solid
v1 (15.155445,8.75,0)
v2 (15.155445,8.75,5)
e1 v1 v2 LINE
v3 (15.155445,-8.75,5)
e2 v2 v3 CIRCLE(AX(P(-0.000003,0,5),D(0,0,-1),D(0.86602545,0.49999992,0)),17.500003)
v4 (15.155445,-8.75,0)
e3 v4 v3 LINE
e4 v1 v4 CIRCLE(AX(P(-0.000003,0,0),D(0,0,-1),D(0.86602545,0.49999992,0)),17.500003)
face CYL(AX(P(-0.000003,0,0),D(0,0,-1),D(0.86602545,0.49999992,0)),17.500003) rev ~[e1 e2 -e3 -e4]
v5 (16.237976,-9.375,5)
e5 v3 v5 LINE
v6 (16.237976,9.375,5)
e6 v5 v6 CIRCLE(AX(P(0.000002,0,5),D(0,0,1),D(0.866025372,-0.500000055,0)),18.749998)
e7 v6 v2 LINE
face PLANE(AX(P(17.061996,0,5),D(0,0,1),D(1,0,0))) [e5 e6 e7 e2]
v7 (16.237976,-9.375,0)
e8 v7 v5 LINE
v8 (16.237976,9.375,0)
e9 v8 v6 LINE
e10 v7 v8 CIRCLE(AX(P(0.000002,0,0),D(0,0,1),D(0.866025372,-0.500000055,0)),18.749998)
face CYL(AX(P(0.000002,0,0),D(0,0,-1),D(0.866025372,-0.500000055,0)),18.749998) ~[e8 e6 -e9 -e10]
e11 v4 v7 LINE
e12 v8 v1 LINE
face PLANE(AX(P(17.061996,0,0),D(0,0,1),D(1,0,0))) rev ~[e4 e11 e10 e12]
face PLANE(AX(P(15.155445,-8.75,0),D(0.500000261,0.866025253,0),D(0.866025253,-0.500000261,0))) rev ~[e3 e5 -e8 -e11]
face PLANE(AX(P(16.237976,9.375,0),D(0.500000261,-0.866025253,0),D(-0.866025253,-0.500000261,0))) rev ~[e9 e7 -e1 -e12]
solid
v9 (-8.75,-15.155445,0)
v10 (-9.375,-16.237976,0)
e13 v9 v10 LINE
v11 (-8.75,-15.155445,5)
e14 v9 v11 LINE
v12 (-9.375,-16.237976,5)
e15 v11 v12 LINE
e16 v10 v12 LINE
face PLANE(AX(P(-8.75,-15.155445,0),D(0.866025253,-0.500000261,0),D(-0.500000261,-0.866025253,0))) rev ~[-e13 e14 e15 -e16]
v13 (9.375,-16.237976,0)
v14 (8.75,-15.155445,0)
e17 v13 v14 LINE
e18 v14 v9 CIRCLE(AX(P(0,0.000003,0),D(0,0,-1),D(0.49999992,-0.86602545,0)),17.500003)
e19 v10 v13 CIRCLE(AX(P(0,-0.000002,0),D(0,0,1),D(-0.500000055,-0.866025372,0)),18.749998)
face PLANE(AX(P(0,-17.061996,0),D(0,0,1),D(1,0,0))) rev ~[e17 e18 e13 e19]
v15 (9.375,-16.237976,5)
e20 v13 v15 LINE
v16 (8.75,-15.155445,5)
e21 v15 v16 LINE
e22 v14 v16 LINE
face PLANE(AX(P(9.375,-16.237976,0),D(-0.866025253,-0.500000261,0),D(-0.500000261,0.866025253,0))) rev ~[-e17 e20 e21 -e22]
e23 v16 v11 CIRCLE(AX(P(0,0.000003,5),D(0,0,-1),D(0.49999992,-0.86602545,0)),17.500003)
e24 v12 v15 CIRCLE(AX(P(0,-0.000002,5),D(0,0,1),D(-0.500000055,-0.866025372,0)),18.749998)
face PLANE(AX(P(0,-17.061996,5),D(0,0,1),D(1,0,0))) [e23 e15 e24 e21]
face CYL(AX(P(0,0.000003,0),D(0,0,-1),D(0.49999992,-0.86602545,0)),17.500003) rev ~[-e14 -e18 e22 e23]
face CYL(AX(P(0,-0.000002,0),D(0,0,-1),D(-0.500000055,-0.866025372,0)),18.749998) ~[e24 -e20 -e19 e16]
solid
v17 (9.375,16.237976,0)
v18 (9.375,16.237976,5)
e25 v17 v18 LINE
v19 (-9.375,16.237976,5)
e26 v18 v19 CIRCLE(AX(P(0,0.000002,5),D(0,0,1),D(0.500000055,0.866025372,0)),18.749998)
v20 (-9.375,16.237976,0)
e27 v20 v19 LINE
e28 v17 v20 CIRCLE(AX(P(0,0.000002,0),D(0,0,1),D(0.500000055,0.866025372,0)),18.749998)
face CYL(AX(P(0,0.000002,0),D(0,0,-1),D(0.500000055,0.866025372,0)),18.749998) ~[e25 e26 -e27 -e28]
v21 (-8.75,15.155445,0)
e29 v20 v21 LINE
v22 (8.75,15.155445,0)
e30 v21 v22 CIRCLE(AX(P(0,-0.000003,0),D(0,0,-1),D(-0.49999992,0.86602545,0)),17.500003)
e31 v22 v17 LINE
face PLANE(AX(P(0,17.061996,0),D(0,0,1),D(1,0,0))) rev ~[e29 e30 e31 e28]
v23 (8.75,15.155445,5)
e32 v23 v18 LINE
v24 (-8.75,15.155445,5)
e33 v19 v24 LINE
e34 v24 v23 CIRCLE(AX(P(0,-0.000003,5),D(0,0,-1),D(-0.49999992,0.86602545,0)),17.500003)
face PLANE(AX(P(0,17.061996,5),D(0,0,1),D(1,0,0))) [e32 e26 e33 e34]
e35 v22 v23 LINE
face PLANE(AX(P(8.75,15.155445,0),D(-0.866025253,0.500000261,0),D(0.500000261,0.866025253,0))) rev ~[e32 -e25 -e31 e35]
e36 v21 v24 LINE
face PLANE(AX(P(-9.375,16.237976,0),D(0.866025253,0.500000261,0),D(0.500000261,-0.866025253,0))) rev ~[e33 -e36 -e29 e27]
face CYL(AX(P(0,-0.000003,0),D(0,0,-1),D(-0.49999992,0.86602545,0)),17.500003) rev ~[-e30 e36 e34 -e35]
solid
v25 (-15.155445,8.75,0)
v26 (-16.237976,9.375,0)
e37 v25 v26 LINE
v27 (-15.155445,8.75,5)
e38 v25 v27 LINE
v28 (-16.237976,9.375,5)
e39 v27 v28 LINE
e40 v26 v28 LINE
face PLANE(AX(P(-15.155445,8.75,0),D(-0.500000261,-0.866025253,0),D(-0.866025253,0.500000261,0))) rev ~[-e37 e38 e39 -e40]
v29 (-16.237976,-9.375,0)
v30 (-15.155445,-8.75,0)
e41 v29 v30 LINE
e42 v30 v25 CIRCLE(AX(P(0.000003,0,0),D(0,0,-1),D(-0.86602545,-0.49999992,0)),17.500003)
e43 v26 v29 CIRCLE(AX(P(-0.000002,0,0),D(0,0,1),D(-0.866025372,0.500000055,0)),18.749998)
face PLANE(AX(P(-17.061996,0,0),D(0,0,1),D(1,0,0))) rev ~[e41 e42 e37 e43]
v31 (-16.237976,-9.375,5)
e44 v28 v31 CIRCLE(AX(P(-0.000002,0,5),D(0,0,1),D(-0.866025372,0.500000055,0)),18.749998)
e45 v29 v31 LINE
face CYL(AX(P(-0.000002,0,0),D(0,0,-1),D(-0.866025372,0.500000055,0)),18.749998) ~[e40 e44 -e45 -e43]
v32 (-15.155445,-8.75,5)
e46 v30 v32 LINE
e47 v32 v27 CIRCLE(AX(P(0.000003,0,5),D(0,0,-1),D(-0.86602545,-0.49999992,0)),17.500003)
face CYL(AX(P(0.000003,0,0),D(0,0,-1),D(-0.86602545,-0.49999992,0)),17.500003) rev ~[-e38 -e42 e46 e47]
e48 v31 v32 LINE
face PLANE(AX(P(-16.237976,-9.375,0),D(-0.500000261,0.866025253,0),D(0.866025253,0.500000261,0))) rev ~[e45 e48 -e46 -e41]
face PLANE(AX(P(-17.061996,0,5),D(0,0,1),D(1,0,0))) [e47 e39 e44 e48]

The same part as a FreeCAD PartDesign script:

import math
import FreeCAD as App
import Part
import Sketcher
Q = App.Units.Quantity

doc = App.newDocument("Part")
params = doc.addObject("Spreadsheet::Sheet", "Params")
for row, (alias, value) in enumerate([
    ("sketch1_length", "1.249999 mm"),
    ("pad1_length", "5 mm"),
], start=1):
    params.set(f"A{row}", alias)
    params.set(f"B{row}", "=" + value)
    params.setAlias(f"B{row}", alias)

body = doc.addObject("PartDesign::Body", "Body")
body.AllowCompound = True

# Sketch on XY plane
sketch1 = body.newObject("Sketcher::SketchObject", "Sketch")
sketch1.AttachmentSupport = (doc.getObject("XY_Plane"), [""])
sketch1.MapMode = "FlatFace"
sketch1.addGeometry(Part.ArcOfCircle(Part.Circle(App.Vector(0, 0, 0), App.Vector(0, 0, 1), 17.5), math.radians(150), math.radians(210)), False)
sketch1.addGeometry(Part.LineSegment(App.Vector(-15.2, 8.8, 0), App.Vector(-16.2, 9.4, 0)), False)
sketch1.addGeometry(Part.ArcOfCircle(Part.Circle(App.Vector(0, 0, 0), App.Vector(0, 0, 1), 18.7), math.radians(150), math.radians(210)), False)
sketch1.addGeometry(Part.LineSegment(App.Vector(-16.2, -9.4, 0), App.Vector(-15.2, -8.8, 0)), False)
sketch1.addGeometry(Part.ArcOfCircle(Part.Circle(App.Vector(0, 0, 0), App.Vector(0, 0, 1), 17.5), math.radians(-120), math.radians(-60)), False)
sketch1.addGeometry(Part.LineSegment(App.Vector(-8.8, -15.2, 0), App.Vector(-9.4, -16.2, 0)), False)
sketch1.addGeometry(Part.ArcOfCircle(Part.Circle(App.Vector(0, 0, 0), App.Vector(0, 0, 1), 18.7), math.radians(-120), math.radians(-60)), False)
sketch1.addGeometry(Part.LineSegment(App.Vector(9.4, -16.2, 0), App.Vector(8.8, -15.2, 0)), False)
sketch1.addGeometry(Part.ArcOfCircle(Part.Circle(App.Vector(0, 0, 0), App.Vector(0, 0, 1), 17.5), math.radians(-30), math.radians(30)), False)
sketch1.addGeometry(Part.LineSegment(App.Vector(15.2, -8.8, 0), App.Vector(16.2, -9.4, 0)), False)
sketch1.addGeometry(Part.ArcOfCircle(Part.Circle(App.Vector(0, 0, 0), App.Vector(0, 0, 1), 18.7), math.radians(-30), math.radians(30)), False)
sketch1.addGeometry(Part.LineSegment(App.Vector(16.2, 9.4, 0), App.Vector(15.2, 8.8, 0)), False)
sketch1.addGeometry(Part.LineSegment(App.Vector(-9.4, 16.2, 0), App.Vector(-8.8, 15.2, 0)), False)
sketch1.addGeometry(Part.ArcOfCircle(Part.Circle(App.Vector(0, 0, 0), App.Vector(0, 0, 1), 17.5), math.radians(60), math.radians(120)), False)
sketch1.addGeometry(Part.LineSegment(App.Vector(8.8, 15.2, 0), App.Vector(9.4, 16.2, 0)), False)
sketch1.addGeometry(Part.ArcOfCircle(Part.Circle(App.Vector(0, 0, 0), App.Vector(0, 0, 1), 18.7), math.radians(60), math.radians(120)), False)
sketch1.addConstraint(Sketcher.Constraint("Coincident", 0, 1, 1, 1))
sketch1.addConstraint(Sketcher.Constraint("Coincident", 1, 2, 2, 1))
sketch1.addConstraint(Sketcher.Constraint("Coincident", 2, 2, 3, 1))
sketch1.addConstraint(Sketcher.Constraint("Coincident", 3, 2, 0, 2))
sketch1.addConstraint(Sketcher.Constraint("Coincident", 4, 1, 5, 1))
sketch1.addConstraint(Sketcher.Constraint("Coincident", 5, 2, 6, 1))
sketch1.addConstraint(Sketcher.Constraint("Coincident", 6, 2, 7, 1))
sketch1.addConstraint(Sketcher.Constraint("Coincident", 7, 2, 4, 2))
sketch1.addConstraint(Sketcher.Constraint("Coincident", 8, 1, 9, 1))
sketch1.addConstraint(Sketcher.Constraint("Coincident", 9, 2, 10, 1))
sketch1.addConstraint(Sketcher.Constraint("Coincident", 10, 2, 11, 1))
sketch1.addConstraint(Sketcher.Constraint("Coincident", 11, 2, 8, 2))
sketch1.addConstraint(Sketcher.Constraint("Coincident", 12, 2, 13, 2))
sketch1.addConstraint(Sketcher.Constraint("Coincident", 13, 1, 14, 1))
sketch1.addConstraint(Sketcher.Constraint("Coincident", 14, 2, 15, 1))
sketch1.addConstraint(Sketcher.Constraint("Coincident", 15, 2, 12, 1))
sketch1.addConstraint(Sketcher.Constraint("Coincident", 0, 3, -1, 1))
sketch1.addConstraint(Sketcher.Constraint("Coincident", 2, 3, -1, 1))
sketch1.addConstraint(Sketcher.Constraint("Coincident", 4, 3, -1, 1))
sketch1.addConstraint(Sketcher.Constraint("Coincident", 6, 3, -1, 1))
sketch1.addConstraint(Sketcher.Constraint("Coincident", 8, 3, -1, 1))
sketch1.addConstraint(Sketcher.Constraint("Coincident", 10, 3, -1, 1))
sketch1.addConstraint(Sketcher.Constraint("Coincident", 13, 3, -1, 1))
sketch1.addConstraint(Sketcher.Constraint("Coincident", 15, 3, -1, 1))
sketch1.addConstraint(Sketcher.Constraint("Equal", 0, 4))
sketch1.addConstraint(Sketcher.Constraint("Equal", 2, 6))
sketch1.addConstraint(Sketcher.Constraint("Equal", 4, 8))
sketch1.addConstraint(Sketcher.Constraint("Equal", 6, 10))
sketch1.addConstraint(Sketcher.Constraint("Equal", 8, 13))
sketch1.addConstraint(Sketcher.Constraint("Equal", 10, 15))
sketch1.addConstraint(Sketcher.Constraint("Perpendicular", 1, 5))
sketch1.addConstraint(Sketcher.Constraint("Perpendicular", 3, 7))
sketch1.addConstraint(Sketcher.Constraint("Perpendicular", 5, 9))
sketch1.addConstraint(Sketcher.Constraint("Perpendicular", 7, 11))
sketch1.addConstraint(Sketcher.Constraint("Perpendicular", 11, 12))
sketch1.addConstraint(Sketcher.Constraint("Perpendicular", 9, 14))
sketch1.addConstraint(Sketcher.Constraint("Horizontal", 5, 2, 6, 2))
sketch1.addConstraint(Sketcher.Constraint("Horizontal", 4, 1, 7, 2))
sketch1.addConstraint(Sketcher.Constraint("Horizontal", 3, 2, 8, 1))
sketch1.addConstraint(Sketcher.Constraint("Horizontal", 1, 2, 10, 2))
sketch1.addConstraint(Sketcher.Constraint("Horizontal", 12, 2, 13, 1))
sketch1.addConstraint(Sketcher.Constraint("Vertical", 1, 2, 2, 2))
sketch1.addConstraint(Sketcher.Constraint("Vertical", 4, 1, 12, 2))
sketch1.addConstraint(Sketcher.Constraint("Angle", 1, Q("149.999983 deg")))
sketch1.addConstraint(Sketcher.Constraint("Distance", 1, Q("1.249999 mm")))
sketch1.addConstraint(Sketcher.Constraint("DistanceY", -1, 1, 0, 1, Q("8.75 mm")))
sketch1.addConstraint(Sketcher.Constraint("DistanceX", 4, 1, -1, 1, Q("8.75 mm")))
sketch1.addConstraint(Sketcher.Constraint("Radius", 0, Q("17.500003 mm")))
sketch1.setExpression("Constraints[44]", "Params.sketch1_length")
pad1 = body.newObject("PartDesign::Pad", "Pad")
pad1.Profile = sketch1
pad1.setExpression("Length", "Params.pad1_length")

doc.recompute()
